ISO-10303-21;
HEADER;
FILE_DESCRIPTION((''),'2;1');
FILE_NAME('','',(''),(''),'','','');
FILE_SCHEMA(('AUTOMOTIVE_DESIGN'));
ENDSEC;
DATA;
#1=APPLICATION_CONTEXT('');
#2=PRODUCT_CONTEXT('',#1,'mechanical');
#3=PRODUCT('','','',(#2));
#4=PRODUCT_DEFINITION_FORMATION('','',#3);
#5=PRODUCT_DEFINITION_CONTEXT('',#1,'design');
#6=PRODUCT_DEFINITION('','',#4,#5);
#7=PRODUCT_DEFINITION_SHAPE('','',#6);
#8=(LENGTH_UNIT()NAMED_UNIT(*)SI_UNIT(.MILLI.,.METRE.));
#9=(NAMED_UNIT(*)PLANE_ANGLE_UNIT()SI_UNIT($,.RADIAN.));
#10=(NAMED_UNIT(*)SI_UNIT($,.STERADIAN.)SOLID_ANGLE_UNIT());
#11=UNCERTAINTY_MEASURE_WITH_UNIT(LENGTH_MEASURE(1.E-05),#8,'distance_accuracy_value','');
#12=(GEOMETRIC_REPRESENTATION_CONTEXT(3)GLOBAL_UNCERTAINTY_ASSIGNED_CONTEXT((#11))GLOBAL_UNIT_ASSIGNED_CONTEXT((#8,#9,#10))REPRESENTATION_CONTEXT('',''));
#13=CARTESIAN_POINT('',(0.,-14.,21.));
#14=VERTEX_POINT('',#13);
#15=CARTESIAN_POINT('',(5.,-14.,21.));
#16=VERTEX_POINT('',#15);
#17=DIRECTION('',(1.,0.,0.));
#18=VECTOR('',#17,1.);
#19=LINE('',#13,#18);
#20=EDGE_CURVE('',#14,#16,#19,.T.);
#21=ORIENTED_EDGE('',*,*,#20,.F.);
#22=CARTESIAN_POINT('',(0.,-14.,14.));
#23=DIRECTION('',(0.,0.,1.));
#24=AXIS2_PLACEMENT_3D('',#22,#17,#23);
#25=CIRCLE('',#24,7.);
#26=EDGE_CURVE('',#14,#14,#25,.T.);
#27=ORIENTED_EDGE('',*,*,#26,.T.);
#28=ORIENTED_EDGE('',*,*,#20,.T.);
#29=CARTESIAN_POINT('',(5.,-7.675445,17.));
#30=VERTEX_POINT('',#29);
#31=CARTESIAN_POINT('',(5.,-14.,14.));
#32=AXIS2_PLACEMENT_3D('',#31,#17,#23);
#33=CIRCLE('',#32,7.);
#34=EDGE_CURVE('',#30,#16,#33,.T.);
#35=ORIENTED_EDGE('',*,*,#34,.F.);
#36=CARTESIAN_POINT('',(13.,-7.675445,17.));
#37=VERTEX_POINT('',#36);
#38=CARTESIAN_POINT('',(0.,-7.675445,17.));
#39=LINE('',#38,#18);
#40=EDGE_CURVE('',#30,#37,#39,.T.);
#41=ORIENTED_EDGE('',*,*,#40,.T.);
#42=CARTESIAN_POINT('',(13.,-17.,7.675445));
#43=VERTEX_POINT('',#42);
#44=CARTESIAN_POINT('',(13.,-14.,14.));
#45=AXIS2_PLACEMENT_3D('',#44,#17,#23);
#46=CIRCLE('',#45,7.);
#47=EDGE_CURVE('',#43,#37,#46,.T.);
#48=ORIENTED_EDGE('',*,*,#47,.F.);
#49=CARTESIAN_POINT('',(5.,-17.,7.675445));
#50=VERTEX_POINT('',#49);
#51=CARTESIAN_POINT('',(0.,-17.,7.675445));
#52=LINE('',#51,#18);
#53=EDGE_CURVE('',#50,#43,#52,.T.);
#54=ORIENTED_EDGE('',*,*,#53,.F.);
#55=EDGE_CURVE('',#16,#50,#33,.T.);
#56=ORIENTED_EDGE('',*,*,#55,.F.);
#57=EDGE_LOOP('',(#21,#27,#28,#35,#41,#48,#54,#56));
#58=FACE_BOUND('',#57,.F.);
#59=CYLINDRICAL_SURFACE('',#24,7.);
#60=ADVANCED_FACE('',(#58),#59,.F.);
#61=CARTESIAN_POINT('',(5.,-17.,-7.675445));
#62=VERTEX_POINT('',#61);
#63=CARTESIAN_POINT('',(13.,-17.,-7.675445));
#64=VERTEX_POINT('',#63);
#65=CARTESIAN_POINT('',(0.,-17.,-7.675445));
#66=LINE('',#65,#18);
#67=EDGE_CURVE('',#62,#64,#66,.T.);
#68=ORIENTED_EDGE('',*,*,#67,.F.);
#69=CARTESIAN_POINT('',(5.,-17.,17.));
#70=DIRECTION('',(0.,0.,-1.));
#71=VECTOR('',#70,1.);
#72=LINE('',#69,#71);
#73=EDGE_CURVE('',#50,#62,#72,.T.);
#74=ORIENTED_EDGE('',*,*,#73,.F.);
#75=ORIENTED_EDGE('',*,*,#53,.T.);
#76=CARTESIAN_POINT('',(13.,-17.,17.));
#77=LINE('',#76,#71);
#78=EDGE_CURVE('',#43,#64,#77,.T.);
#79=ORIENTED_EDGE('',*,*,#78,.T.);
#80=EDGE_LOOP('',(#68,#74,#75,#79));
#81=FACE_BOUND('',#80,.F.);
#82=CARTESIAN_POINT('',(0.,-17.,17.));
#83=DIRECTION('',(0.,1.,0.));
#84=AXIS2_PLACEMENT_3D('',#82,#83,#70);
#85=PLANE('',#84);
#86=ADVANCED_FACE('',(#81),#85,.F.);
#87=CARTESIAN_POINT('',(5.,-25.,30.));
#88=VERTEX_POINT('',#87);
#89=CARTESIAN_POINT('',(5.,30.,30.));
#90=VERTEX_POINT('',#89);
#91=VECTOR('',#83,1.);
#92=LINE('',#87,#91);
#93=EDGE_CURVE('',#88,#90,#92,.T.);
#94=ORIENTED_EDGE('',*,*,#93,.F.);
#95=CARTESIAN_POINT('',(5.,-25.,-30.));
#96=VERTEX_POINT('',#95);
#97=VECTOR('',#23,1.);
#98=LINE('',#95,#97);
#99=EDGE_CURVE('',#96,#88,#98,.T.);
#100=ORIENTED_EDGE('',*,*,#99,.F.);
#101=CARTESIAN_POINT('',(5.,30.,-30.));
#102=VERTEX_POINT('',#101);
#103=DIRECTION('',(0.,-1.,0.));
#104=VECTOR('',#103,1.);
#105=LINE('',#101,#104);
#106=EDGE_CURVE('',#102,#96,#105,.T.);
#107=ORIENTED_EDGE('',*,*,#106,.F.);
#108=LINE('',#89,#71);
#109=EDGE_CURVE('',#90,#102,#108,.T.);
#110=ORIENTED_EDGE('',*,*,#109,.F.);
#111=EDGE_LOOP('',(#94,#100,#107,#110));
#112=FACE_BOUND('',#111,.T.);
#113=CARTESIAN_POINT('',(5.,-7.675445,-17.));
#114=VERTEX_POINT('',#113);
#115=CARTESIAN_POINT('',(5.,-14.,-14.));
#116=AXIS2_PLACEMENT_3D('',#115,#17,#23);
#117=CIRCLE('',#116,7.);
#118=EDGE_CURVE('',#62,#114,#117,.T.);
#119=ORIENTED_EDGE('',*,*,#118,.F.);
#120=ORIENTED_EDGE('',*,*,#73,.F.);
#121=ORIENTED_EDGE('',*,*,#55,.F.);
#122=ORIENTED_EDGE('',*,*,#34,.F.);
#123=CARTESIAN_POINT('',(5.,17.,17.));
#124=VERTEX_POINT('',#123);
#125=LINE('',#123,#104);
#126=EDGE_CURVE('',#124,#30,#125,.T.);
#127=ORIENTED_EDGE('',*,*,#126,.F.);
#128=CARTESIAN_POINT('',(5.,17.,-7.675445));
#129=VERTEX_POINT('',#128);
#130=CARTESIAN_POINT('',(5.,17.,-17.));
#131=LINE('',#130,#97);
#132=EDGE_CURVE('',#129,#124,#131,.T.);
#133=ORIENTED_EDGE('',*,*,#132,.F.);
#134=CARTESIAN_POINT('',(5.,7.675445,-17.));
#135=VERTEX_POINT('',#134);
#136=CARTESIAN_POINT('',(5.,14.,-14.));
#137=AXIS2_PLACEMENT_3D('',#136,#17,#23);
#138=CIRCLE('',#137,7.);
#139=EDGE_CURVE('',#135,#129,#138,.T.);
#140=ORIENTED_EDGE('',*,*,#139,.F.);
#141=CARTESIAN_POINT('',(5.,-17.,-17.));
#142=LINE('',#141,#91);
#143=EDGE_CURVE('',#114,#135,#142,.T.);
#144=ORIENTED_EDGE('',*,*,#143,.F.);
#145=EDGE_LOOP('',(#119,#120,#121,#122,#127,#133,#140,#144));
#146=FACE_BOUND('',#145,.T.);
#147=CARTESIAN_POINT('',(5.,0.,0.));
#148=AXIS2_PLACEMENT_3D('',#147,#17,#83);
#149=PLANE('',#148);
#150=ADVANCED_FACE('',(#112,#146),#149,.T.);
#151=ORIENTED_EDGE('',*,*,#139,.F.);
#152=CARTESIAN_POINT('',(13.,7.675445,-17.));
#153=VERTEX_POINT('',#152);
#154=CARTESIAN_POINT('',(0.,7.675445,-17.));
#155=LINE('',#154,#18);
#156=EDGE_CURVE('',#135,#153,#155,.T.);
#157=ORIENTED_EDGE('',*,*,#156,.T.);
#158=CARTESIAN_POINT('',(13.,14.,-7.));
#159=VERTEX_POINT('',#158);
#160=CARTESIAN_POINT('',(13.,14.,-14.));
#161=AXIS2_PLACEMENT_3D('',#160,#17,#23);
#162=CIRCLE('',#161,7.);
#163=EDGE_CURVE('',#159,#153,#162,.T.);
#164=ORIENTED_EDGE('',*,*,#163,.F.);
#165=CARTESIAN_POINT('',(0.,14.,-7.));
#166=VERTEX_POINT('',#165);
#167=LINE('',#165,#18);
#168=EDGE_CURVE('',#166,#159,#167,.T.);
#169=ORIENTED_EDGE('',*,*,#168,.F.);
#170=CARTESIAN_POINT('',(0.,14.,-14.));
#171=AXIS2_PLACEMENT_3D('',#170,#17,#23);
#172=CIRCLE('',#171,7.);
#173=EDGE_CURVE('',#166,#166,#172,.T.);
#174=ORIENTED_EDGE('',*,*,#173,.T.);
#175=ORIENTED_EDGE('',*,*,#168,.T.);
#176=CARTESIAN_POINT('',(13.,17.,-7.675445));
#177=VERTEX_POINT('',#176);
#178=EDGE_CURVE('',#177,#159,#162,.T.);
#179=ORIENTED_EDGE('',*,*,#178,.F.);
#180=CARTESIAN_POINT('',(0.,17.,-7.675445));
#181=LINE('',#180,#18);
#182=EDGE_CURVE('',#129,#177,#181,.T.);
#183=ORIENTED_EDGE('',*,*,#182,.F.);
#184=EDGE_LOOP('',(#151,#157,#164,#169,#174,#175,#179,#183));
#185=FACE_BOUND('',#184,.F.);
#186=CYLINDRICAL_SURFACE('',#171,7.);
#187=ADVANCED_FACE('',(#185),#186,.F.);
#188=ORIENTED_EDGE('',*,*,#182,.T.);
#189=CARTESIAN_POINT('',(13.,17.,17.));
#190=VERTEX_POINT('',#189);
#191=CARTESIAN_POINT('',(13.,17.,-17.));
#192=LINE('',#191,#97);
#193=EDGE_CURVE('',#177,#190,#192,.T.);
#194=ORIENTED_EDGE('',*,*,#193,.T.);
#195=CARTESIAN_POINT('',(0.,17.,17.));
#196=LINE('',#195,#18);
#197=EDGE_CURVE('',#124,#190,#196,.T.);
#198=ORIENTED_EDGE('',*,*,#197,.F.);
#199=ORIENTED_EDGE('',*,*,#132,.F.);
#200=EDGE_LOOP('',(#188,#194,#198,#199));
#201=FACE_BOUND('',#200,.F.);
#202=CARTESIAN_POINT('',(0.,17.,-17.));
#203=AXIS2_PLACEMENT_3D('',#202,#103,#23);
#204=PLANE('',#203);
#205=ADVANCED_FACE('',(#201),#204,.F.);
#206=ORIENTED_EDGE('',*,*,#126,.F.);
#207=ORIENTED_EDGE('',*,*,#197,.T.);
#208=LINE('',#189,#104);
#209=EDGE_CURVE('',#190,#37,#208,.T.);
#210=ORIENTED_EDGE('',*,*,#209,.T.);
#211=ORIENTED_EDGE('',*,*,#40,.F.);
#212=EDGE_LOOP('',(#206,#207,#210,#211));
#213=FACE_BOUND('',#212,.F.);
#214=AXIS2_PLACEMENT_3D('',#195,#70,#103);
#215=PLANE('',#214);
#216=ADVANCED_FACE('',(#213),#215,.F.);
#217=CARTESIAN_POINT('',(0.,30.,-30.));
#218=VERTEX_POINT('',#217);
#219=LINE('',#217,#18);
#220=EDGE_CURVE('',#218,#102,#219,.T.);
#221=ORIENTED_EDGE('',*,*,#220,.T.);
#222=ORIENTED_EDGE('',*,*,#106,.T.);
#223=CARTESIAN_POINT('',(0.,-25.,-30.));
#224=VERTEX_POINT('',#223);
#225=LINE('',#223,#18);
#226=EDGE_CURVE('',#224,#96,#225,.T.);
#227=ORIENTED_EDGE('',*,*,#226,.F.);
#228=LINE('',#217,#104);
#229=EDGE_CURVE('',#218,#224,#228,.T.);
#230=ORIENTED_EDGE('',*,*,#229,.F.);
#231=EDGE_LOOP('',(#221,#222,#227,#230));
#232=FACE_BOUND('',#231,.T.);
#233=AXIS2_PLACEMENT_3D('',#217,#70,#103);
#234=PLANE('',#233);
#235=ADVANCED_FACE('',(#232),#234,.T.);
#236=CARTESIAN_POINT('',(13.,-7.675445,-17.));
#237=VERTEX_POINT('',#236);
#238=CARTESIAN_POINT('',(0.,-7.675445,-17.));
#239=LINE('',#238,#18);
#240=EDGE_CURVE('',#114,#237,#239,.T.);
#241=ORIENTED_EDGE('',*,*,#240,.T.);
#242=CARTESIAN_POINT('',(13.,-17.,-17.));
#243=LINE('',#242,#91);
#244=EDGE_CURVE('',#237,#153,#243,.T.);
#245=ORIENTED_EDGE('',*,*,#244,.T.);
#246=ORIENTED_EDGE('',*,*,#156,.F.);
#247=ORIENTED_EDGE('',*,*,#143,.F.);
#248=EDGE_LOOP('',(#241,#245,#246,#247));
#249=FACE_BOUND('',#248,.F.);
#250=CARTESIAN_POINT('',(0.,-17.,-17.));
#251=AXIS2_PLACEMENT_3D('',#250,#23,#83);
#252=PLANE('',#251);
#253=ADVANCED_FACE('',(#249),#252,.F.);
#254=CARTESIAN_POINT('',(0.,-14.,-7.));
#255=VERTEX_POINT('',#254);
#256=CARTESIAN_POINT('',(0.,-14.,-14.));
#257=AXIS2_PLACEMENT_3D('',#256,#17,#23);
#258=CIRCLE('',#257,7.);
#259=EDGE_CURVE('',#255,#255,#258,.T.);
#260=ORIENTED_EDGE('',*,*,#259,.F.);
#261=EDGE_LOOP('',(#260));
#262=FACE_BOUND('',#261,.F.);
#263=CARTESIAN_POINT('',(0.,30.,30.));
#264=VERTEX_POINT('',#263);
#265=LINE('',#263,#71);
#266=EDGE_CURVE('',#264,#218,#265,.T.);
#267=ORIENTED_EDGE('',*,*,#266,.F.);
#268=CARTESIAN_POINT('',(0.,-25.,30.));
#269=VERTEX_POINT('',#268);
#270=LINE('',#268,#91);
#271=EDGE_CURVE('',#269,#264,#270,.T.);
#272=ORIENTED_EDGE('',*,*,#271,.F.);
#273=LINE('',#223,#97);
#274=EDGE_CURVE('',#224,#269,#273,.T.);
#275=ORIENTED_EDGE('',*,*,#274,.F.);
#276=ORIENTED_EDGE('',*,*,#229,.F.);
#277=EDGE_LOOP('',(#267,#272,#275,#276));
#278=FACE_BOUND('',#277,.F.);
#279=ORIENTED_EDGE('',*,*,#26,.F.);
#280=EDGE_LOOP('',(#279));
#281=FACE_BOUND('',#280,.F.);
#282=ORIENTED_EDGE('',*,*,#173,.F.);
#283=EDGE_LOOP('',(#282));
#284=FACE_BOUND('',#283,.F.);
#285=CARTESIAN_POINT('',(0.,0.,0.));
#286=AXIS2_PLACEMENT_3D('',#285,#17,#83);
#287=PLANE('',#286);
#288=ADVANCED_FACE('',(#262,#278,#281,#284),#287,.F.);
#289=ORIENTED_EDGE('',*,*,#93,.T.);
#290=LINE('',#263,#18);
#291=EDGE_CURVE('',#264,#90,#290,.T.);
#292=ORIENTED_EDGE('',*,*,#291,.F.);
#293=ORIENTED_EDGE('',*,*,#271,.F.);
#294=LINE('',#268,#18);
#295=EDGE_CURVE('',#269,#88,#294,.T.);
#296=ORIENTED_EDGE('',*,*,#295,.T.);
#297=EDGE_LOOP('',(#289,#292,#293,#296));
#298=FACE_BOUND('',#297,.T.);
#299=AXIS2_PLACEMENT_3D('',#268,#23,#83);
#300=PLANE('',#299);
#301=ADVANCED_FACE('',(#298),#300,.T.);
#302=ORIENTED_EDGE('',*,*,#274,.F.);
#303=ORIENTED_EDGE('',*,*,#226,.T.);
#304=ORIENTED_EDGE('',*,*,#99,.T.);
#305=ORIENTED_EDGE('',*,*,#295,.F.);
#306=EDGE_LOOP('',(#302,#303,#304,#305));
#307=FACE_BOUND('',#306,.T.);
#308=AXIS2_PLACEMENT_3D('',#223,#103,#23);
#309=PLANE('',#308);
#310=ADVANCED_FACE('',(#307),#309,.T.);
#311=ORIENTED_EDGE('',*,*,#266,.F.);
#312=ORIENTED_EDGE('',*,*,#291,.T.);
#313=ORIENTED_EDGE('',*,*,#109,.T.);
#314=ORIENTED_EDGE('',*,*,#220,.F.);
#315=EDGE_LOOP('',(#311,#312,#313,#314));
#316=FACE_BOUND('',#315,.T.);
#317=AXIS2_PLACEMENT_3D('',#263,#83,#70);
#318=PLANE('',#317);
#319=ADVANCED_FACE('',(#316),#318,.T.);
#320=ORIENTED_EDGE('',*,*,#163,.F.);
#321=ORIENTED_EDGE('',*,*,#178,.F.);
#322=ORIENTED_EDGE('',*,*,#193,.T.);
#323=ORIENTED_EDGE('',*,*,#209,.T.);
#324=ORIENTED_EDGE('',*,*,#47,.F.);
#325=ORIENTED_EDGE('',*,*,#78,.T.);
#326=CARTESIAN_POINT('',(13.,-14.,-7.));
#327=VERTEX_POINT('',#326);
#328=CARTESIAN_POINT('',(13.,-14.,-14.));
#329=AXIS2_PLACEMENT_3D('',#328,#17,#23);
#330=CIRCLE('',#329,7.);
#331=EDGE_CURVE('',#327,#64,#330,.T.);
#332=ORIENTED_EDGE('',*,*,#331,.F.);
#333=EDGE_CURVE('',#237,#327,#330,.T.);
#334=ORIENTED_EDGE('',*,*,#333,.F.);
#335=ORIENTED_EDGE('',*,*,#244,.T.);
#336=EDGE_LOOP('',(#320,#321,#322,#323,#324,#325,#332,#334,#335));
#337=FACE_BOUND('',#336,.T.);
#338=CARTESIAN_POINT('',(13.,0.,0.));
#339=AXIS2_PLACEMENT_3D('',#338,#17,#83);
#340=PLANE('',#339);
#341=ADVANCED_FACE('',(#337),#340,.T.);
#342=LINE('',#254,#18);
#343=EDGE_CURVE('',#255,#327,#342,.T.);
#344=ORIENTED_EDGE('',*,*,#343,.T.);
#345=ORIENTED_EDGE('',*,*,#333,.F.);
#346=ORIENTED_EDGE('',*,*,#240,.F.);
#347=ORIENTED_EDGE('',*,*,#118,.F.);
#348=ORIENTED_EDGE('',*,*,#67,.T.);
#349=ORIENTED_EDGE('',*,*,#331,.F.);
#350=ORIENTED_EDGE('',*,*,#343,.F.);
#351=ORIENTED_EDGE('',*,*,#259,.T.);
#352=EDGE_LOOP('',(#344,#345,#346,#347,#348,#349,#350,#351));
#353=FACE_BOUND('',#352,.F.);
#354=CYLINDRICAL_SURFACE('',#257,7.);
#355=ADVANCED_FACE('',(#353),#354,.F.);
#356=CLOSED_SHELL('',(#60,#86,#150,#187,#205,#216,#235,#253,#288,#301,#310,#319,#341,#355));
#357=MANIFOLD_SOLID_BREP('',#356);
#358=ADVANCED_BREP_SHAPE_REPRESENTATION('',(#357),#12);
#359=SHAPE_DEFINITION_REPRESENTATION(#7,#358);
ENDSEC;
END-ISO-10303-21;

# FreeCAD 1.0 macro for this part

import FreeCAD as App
import Part
import Sketcher
Q = App.Units.Quantity


def add_polygon(sketch, points):
    """Adds a closed chain of lines whose ends are joined by coincident constraints."""
    first, n = sketch.GeometryCount, len(points)
    for a, b in zip(points, points[1:] + points[:1]):
        sketch.addGeometry(Part.LineSegment(App.Vector(*a, 0), App.Vector(*b, 0)), False)
    for i in range(n):
        sketch.addConstraint(Sketcher.Constraint("Coincident", first + i, 2, first + (i + 1) % n, 1))

doc = App.newDocument("Part")
body = doc.addObject("PartDesign::Body", "Body")

sketch1 = doc.addObject("Sketcher::SketchObject", "Sketch")
body.addObject(sketch1)
sketch1.AttachmentSupport = (doc.YZ_Plane, [""])
sketch1.MapMode = "FlatFace"
add_polygon(sketch1, [(17, -17), (17, 17), (-17, 17), (-17, -17)])
sketch1.addConstraint([
    Sketcher.Constraint("Vertical", 0),
    Sketcher.Constraint("Horizontal", 1),
    Sketcher.Constraint("Vertical", 2),
    Sketcher.Constraint("Horizontal", 3),
    Sketcher.Constraint("Symmetric", 0, 2, 2, 2, -1, 1),
    Sketcher.Constraint("Equal", 3, 0),
    Sketcher.Constraint("DistanceX", 1, 2, 1, 1, Q("34 mm")),
])
pad1 = doc.addObject("PartDesign::Pad", "Pad")
body.addObject(pad1)
pad1.Profile = sketch1
pad1.Length = 13

sketch2 = doc.addObject("Sketcher::SketchObject", "Sketch001")
body.addObject(sketch2)
sketch2.AttachmentSupport = (doc.YZ_Plane, [""])
sketch2.MapMode = "FlatFace"
add_polygon(sketch2, [(30, 30), (-25, 30), (-25, -30), (30, -30)])
add_polygon(sketch2, [(-17, 17), (17, 17), (17, -17), (-17, -17)])
sketch2.addConstraint([
    Sketcher.Constraint("Horizontal", 0),
    Sketcher.Constraint("Vertical", 1),
    Sketcher.Constraint("Horizontal", 2),
    Sketcher.Constraint("Vertical", 3),
    Sketcher.Constraint("Horizontal", 4),
    Sketcher.Constraint("Vertical", 5),
    Sketcher.Constraint("Horizontal", 6),
    Sketcher.Constraint("Vertical", 7),
    Sketcher.Constraint("Symmetric", 4, 2, 6, 2, -1, 1),
    Sketcher.Constraint("Equal", 6, 5),
    Sketcher.Constraint("DistanceX", 0, 2, 0, 1, Q("55 mm")),
    Sketcher.Constraint("DistanceX", 4, 1, 4, 2, Q("34 mm")),
    Sketcher.Constraint("DistanceY", 1, 2, 1, 1, Q("60 mm")),
    Sketcher.Constraint("DistanceX", 0, 2, -1, 1, Q("25 mm")),
    Sketcher.Constraint("DistanceY", -1, 1, 0, 2, Q("30 mm")),
])
pad2 = doc.addObject("PartDesign::Pad", "Pad001")
body.addObject(pad2)
pad2.Profile = sketch2
pad2.Length = 5

sketch3 = doc.addObject("Sketcher::SketchObject", "Sketch002")
body.addObject(sketch3)
sketch3.AttachmentSupport = (doc.YZ_Plane, [""])
sketch3.MapMode = "FlatFace"
sketch3.addGeometry([
    Part.Circle(App.Vector(14, -14, 0), App.Vector(0, 0, 1), 7),
    Part.Circle(App.Vector(-14, 14, 0), App.Vector(0, 0, 1), 7),
    Part.Circle(App.Vector(-14, -14, 0), App.Vector(0, 0, 1), 7),
], False)
sketch3.addConstraint([
    Sketcher.Constraint("Equal", 0, 1),
    Sketcher.Constraint("Equal", 1, 2),
    Sketcher.Constraint("Symmetric", 0, 3, 1, 3, -1, 1),
    Sketcher.Constraint("Symmetric", 0, 3, 2, 3, -2),
    Sketcher.Constraint("Diameter", 0, Q("14 mm")),
    Sketcher.Constraint("DistanceX", -1, 1, 0, 3, Q("14 mm")),
    Sketcher.Constraint("DistanceY", 0, 3, -1, 1, Q("14 mm")),
])
doc.recompute()
hole = doc.addObject("PartDesign::Hole", "Hole")
body.addObject(hole)
hole.Profile = sketch3
hole.ThreadType = "None"
hole.Diameter = 14
hole.DepthType = "ThroughAll"
hole.Reversed = True

doc.recompute()
